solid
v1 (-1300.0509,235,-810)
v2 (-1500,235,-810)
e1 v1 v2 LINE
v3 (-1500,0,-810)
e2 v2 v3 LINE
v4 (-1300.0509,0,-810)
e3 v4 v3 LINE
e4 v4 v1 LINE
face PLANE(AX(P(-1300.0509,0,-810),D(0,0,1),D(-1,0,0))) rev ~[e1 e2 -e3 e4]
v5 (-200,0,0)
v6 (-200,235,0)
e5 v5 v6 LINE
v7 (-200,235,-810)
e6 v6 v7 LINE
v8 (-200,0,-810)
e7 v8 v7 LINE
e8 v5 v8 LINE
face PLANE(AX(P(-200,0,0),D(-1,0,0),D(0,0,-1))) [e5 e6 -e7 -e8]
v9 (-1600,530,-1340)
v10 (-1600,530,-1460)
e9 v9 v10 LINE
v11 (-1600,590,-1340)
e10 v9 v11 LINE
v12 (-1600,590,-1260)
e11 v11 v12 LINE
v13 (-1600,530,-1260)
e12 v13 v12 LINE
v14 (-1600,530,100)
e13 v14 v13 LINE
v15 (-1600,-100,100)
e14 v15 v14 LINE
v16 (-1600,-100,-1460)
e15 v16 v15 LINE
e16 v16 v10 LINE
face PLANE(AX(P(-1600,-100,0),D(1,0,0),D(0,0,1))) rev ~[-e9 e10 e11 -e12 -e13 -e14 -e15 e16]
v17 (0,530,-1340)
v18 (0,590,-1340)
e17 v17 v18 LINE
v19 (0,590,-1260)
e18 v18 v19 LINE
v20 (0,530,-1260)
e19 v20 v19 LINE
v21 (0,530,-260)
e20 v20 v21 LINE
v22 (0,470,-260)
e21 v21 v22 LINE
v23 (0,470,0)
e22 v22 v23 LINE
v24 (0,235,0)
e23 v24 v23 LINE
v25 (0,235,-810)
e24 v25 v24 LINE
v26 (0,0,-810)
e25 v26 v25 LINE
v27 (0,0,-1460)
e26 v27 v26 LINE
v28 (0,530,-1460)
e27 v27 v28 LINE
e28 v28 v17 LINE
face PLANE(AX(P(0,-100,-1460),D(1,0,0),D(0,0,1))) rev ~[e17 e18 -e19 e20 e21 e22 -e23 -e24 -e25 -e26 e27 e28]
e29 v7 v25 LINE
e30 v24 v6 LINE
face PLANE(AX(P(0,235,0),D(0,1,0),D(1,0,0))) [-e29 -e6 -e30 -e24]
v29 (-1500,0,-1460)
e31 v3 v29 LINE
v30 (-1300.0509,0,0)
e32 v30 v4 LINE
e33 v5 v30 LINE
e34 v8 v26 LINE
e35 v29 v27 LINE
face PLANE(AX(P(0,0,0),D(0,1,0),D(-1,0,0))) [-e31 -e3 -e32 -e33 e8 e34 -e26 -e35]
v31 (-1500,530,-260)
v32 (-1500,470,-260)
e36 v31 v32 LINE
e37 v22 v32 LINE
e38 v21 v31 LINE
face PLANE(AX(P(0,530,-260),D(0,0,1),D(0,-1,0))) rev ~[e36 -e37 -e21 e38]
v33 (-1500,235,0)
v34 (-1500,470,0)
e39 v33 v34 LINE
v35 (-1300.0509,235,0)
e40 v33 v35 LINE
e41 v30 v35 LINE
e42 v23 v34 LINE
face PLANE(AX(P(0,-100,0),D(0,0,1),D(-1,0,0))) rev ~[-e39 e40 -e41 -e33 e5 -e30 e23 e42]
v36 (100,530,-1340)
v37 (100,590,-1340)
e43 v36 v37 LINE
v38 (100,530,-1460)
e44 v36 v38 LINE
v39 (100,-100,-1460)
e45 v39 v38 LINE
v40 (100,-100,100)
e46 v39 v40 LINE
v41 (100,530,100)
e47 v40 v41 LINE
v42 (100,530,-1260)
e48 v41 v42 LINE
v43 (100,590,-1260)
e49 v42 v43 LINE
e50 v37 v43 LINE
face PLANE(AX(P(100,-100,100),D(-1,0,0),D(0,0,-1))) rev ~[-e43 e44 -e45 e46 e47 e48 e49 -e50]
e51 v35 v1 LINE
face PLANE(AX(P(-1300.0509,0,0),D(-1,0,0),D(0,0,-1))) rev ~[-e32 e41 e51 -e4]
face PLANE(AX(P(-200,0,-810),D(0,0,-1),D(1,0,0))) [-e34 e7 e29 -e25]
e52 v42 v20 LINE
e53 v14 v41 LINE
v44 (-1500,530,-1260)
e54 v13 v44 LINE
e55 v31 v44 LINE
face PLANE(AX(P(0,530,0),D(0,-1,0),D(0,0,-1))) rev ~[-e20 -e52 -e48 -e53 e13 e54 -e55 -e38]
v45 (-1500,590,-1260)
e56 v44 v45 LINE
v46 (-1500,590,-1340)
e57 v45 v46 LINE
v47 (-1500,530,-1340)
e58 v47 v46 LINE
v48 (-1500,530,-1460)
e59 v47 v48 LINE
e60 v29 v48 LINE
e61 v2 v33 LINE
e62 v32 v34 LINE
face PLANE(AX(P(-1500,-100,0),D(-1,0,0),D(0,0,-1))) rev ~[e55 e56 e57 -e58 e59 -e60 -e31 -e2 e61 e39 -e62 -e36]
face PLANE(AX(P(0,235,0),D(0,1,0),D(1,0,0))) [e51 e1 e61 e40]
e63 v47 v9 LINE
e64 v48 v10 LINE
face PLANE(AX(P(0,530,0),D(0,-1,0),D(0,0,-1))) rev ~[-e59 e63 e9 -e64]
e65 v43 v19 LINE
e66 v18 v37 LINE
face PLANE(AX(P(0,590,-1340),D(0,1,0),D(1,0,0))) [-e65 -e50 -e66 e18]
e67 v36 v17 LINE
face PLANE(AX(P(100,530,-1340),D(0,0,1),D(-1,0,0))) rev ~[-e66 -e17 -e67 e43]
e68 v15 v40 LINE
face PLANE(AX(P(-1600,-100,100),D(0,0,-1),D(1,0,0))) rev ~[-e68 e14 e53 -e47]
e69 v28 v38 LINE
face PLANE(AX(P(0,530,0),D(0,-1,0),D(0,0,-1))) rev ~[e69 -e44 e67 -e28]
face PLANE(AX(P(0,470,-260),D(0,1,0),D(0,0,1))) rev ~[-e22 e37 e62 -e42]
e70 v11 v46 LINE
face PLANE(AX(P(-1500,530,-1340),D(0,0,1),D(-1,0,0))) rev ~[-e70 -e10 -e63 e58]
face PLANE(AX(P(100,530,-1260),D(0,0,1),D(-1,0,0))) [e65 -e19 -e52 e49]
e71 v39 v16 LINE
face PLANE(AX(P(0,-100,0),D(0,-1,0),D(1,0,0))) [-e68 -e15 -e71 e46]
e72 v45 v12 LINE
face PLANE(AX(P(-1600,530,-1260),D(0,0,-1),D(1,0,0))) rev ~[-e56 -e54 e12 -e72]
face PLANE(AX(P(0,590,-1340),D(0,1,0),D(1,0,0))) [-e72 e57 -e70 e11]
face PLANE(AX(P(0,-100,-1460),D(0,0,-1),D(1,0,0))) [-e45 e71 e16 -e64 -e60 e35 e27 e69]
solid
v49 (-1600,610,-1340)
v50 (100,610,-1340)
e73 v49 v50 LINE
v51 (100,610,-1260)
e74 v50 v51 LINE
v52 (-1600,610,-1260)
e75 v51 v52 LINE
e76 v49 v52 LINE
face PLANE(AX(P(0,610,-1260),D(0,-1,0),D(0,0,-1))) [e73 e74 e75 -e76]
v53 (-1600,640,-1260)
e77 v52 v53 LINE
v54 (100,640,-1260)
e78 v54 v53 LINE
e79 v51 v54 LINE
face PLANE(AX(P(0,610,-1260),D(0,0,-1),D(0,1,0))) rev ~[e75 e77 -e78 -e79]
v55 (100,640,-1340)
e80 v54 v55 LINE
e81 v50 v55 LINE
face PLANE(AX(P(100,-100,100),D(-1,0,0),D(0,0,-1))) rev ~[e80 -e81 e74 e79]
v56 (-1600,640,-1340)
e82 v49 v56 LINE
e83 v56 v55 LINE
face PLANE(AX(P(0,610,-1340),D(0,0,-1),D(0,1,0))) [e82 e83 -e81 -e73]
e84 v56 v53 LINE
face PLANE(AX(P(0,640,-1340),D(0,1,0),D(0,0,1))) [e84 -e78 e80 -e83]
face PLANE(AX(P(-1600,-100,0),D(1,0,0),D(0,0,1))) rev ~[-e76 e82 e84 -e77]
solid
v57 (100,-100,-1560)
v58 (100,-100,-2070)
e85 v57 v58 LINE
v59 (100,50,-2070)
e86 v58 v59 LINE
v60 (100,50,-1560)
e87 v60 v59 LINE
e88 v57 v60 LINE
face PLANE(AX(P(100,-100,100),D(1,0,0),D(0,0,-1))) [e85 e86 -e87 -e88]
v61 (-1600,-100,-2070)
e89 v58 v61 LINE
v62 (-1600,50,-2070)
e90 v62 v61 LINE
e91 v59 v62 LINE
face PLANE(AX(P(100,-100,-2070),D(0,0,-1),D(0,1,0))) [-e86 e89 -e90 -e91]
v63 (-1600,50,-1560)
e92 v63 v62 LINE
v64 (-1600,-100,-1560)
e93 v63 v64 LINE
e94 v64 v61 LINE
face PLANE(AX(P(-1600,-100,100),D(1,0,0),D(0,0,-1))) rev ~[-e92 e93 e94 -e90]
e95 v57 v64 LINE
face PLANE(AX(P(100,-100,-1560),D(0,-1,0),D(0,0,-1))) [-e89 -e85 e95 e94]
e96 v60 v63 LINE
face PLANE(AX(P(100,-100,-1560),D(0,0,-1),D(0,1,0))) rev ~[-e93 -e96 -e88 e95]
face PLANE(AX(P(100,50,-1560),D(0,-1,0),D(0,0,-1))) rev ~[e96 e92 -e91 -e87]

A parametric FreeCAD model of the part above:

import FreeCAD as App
import Part
import Sketcher

V = App.Vector
Q = App.Units.Quantity


def add_polygon(sketch, points):
    """Adds a closed chain of lines whose ends are joined by coincident constraints."""
    first, n = sketch.GeometryCount, len(points)
    for a, b in zip(points, points[1:] + points[:1]):
        sketch.addGeometry(Part.LineSegment(App.Vector(*a, 0), App.Vector(*b, 0)), False)
    for i in range(n):
        sketch.addConstraint(Sketcher.Constraint("Coincident", first + i, 2, first + (i + 1) % n, 1))

doc = App.newDocument("Part")
body = doc.addObject("PartDesign::Body", "Body")
body.AllowCompound = True

sketch1 = body.newObject("Sketcher::SketchObject", "Sketch")
sketch1.AttachmentSupport = (doc.getObject("XZ_Plane"), [""])
sketch1.MapMode = "FlatFace"
add_polygon(sketch1, [(-1500, 0), (0, 0), (0, -1460), (-1500, -1460)])
sketch1.addConstraint([
    Sketcher.Constraint("Horizontal", 0),
    Sketcher.Constraint("Vertical", 1),
    Sketcher.Constraint("Horizontal", 2),
    Sketcher.Constraint("Vertical", 3),
    Sketcher.Constraint("Coincident", 0, 2, -1, 1),
    Sketcher.Constraint("DistanceX", 0, 1, 0, 2, Q("1500 mm")),
    Sketcher.Constraint("DistanceY", 1, 2, 1, 1, Q("1460 mm")),
])
pad1 = body.newObject("PartDesign::Pad", "Pad")
pad1.Profile = sketch1
pad1.Length = 100

sketch2 = body.newObject("Sketcher::SketchObject", "Sketch001")
sketch2.AttachmentSupport = (doc.getObject("XZ_Plane"), [""])
sketch2.MapMode = "FlatFace"
add_polygon(sketch2, [(-1500, -810), (-1500, 0), (-1300, 0), (-1300, -810)])
add_polygon(sketch2, [(-200, 0), (0, 0), (0, -810), (-200, -810)])
sketch2.addConstraint([
    Sketcher.Constraint("Vertical", 0),
    Sketcher.Constraint("Horizontal", 1),
    Sketcher.Constraint("Vertical", 2),
    Sketcher.Constraint("Horizontal", 3),
    Sketcher.Constraint("Horizontal", 4),
    Sketcher.Constraint("Vertical", 5),
    Sketcher.Constraint("Horizontal", 6),
    Sketcher.Constraint("Vertical", 7),
    Sketcher.Constraint("Coincident", 4, 2, -1, 1),
    Sketcher.Constraint("PointOnObject", 0, 2, -1),
    Sketcher.Constraint("Horizontal", 3, 2, 5, 2),
    Sketcher.Constraint("Equal", 3, 4),
    Sketcher.Constraint("DistanceX", 1, 1, 1, 2, Q("200 mm")),
    Sketcher.Constraint("DistanceY", 0, 1, 0, 2, Q("810 mm")),
    Sketcher.Constraint("DistanceX", 0, 2, -1, 1, Q("1500.051 mm")),
])
pad2 = body.newObject("PartDesign::Pad", "Pad001")
pad2.Profile = sketch2
pad2.Length = 235
pad2.Reversed = True

sketch3 = body.newObject("Sketcher::SketchObject", "Sketch002")
sketch3.AttachmentSupport = (doc.getObject("XZ_Plane"), [""])
sketch3.MapMode = "FlatFace"
sketch3.AttachmentOffset = App.Placement(V(0, 0, 100), App.Rotation())
add_polygon(sketch3, [(-1600, 100), (-1600, -1460), (-1500, -1460), (-1500, 0), (0, 0), (0, -1460), (100, -1460), (100, 100)])
sketch3.addConstraint([
    Sketcher.Constraint("Vertical", 0),
    Sketcher.Constraint("Horizontal", 1),
    Sketcher.Constraint("Vertical", 2),
    Sketcher.Constraint("Horizontal", 3),
    Sketcher.Constraint("Vertical", 4),
    Sketcher.Constraint("Horizontal", 5),
    Sketcher.Constraint("Vertical", 6),
    Sketcher.Constraint("Horizontal", 7),
    Sketcher.Constraint("Coincident", 3, 2, -1, 1),
    Sketcher.Constraint("Horizontal", 1, 2, 4, 2),
    Sketcher.Constraint("Equal", 1, 5),
    Sketcher.Constraint("DistanceX", 1, 1, 1, 2, Q("100 mm")),
    Sketcher.Constraint("DistanceX", 7, 2, 7, 1, Q("1700 mm")),
    Sketcher.Constraint("DistanceY", -1, 1, 6, 2, Q("100 mm")),
    Sketcher.Constraint("DistanceY", 0, 2, 0, 1, Q("1560 mm")),
])
pad3 = body.newObject("PartDesign::Pad", "Pad002")
pad3.Profile = sketch3
pad3.Length = 630
pad3.Reversed = True

sketch4 = body.newObject("Sketcher::SketchObject", "Sketch003")
sketch4.AttachmentSupport = (doc.getObject("YZ_Plane"), [""])
sketch4.MapMode = "FlatFace"
add_polygon(sketch4, [(470, 0), (530, 0), (530, -260), (470, -260)])
sketch4.addConstraint([
    Sketcher.Constraint("Horizontal", 0),
    Sketcher.Constraint("Vertical", 1),
    Sketcher.Constraint("Horizontal", 2),
    Sketcher.Constraint("Vertical", 3),
    Sketcher.Constraint("PointOnObject", 0, 2, -1),
    Sketcher.Constraint("DistanceX", 0, 1, 0, 2, Q("60 mm")),
    Sketcher.Constraint("DistanceY", 1, 2, 1, 1, Q("260 mm")),
    Sketcher.Constraint("DistanceX", -1, 1, 0, 2, Q("530 mm")),
])
pad4 = body.newObject("PartDesign::Pad", "Pad003")
pad4.Profile = sketch4
pad4.Length = 1500
pad4.Reversed = True

sketch5 = body.newObject("Sketcher::SketchObject", "Sketch004")
sketch5.AttachmentSupport = (doc.getObject("XZ_Plane"), [""])
sketch5.MapMode = "FlatFace"
sketch5.AttachmentOffset = App.Placement(V(0, 0, -530), App.Rotation())
add_polygon(sketch5, [(100, -1260), (100, -1340), (0, -1340), (0, -1260)])
add_polygon(sketch5, [(-1500, -1260), (-1500, -1340), (-1600, -1340), (-1600, -1260)])
sketch5.addConstraint([
    Sketcher.Constraint("Vertical", 0),
    Sketcher.Constraint("Horizontal", 1),
    Sketcher.Constraint("Vertical", 2),
    Sketcher.Constraint("Horizontal", 3),
    Sketcher.Constraint("Vertical", 4),
    Sketcher.Constraint("Horizontal", 5),
    Sketcher.Constraint("Vertical", 6),
    Sketcher.Constraint("Horizontal", 7),
    Sketcher.Constraint("PointOnObject", 1, 2, -2),
    Sketcher.Constraint("Horizontal", 1, 2, 4, 2),
    Sketcher.Constraint("Horizontal", 3, 2, 6, 2),
    Sketcher.Constraint("Equal", 3, 5),
    Sketcher.Constraint("DistanceY", 0, 2, 0, 1, Q("80 mm")),
    Sketcher.Constraint("DistanceX", 1, 2, 1, 1, Q("100 mm")),
    Sketcher.Constraint("DistanceY", 0, 2, -1, 1, Q("1340 mm")),
    Sketcher.Constraint("DistanceX", 4, 2, -1, 1, Q("1500 mm")),
])
pad5 = body.newObject("PartDesign::Pad", "Pad004")
pad5.Profile = sketch5
pad5.Length = 110
pad5.Reversed = True

sketch6 = body.newObject("Sketcher::SketchObject", "Sketch005")
sketch6.AttachmentSupport = (doc.getObject("XY_Plane"), [""])
sketch6.MapMode = "FlatFace"
sketch6.AttachmentOffset = App.Placement(V(0, 0, -1340), App.Rotation())
add_polygon(sketch6, [(100, 610), (100, 590), (-1600, 590), (-1600, 610)])
sketch6.addConstraint([
    Sketcher.Constraint("Vertical", 0),
    Sketcher.Constraint("Horizontal", 1),
    Sketcher.Constraint("Vertical", 2),
    Sketcher.Constraint("Horizontal", 3),
    Sketcher.Constraint("DistanceX", 1, 2, 1, 1, Q("1700 mm")),
    Sketcher.Constraint("DistanceY", 0, 2, 0, 1, Q("20 mm")),
    Sketcher.Constraint("DistanceX", -1, 1, 0, 2, Q("100 mm")),
    Sketcher.Constraint("DistanceY", -1, 1, 0, 2, Q("590 mm")),
])
pocket1 = body.newObject("PartDesign::Pocket", "Pocket")
pocket1.Profile = sketch6
pocket1.Length = 80
pocket1.Reversed = True

sketch7 = body.newObject("Sketcher::SketchObject", "Sketch006")
sketch7.AttachmentSupport = (doc.getObject("YZ_Plane"), [""])
sketch7.MapMode = "FlatFace"
add_polygon(sketch7, [(610, -1340), (610, -1260), (640, -1260), (640, -1340)])
sketch7.addConstraint([
    Sketcher.Constraint("Vertical", 0),
    Sketcher.Constraint("Horizontal", 1),
    Sketcher.Constraint("Vertical", 2),
    Sketcher.Constraint("Horizontal", 3),
    Sketcher.Constraint("DistanceX", 1, 1, 1, 2, Q("30 mm")),
    Sketcher.Constraint("DistanceY", 0, 1, 0, 2, Q("80 mm")),
    Sketcher.Constraint("DistanceX", -1, 1, 0, 2, Q("610 mm")),
    Sketcher.Constraint("DistanceY", 0, 2, -1, 1, Q("1260 mm")),
])
pad6 = body.newObject("PartDesign::Pad", "Pad005")
pad6.Profile = sketch7
pad6.Length = 1500
pad6.Reversed = True

sketch8 = body.newObject("Sketcher::SketchObject", "Sketch007")
sketch8.AttachmentSupport = (doc.getObject("YZ_Plane"), [""])
sketch8.MapMode = "FlatFace"
sketch8.AttachmentOffset = App.Placement(V(0, 0, 100), App.Rotation())
add_polygon(sketch8, [(-100, -1560), (-100, -2070), (50, -2070), (50, -1560)])
sketch8.addConstraint([
    Sketcher.Constraint("Vertical", 0),
    Sketcher.Constraint("Horizontal", 1),
    Sketcher.Constraint("Vertical", 2),
    Sketcher.Constraint("Horizontal", 3),
    Sketcher.Constraint("DistanceY", 0, 2, 0, 1, Q("510 mm")),
    Sketcher.Constraint("DistanceX", 0, 2, -1, 1, Q("100 mm")),
    Sketcher.Constraint("DistanceX", -1, 1, 1, 2, Q("50 mm")),
    Sketcher.Constraint("DistanceY", 0, 2, -1, 1, Q("2070 mm")),
])
pad7 = body.newObject("PartDesign::Pad", "Pad006")
pad7.Profile = sketch8
pad7.Length = 1700
pad7.Reversed = True

doc.recompute()
